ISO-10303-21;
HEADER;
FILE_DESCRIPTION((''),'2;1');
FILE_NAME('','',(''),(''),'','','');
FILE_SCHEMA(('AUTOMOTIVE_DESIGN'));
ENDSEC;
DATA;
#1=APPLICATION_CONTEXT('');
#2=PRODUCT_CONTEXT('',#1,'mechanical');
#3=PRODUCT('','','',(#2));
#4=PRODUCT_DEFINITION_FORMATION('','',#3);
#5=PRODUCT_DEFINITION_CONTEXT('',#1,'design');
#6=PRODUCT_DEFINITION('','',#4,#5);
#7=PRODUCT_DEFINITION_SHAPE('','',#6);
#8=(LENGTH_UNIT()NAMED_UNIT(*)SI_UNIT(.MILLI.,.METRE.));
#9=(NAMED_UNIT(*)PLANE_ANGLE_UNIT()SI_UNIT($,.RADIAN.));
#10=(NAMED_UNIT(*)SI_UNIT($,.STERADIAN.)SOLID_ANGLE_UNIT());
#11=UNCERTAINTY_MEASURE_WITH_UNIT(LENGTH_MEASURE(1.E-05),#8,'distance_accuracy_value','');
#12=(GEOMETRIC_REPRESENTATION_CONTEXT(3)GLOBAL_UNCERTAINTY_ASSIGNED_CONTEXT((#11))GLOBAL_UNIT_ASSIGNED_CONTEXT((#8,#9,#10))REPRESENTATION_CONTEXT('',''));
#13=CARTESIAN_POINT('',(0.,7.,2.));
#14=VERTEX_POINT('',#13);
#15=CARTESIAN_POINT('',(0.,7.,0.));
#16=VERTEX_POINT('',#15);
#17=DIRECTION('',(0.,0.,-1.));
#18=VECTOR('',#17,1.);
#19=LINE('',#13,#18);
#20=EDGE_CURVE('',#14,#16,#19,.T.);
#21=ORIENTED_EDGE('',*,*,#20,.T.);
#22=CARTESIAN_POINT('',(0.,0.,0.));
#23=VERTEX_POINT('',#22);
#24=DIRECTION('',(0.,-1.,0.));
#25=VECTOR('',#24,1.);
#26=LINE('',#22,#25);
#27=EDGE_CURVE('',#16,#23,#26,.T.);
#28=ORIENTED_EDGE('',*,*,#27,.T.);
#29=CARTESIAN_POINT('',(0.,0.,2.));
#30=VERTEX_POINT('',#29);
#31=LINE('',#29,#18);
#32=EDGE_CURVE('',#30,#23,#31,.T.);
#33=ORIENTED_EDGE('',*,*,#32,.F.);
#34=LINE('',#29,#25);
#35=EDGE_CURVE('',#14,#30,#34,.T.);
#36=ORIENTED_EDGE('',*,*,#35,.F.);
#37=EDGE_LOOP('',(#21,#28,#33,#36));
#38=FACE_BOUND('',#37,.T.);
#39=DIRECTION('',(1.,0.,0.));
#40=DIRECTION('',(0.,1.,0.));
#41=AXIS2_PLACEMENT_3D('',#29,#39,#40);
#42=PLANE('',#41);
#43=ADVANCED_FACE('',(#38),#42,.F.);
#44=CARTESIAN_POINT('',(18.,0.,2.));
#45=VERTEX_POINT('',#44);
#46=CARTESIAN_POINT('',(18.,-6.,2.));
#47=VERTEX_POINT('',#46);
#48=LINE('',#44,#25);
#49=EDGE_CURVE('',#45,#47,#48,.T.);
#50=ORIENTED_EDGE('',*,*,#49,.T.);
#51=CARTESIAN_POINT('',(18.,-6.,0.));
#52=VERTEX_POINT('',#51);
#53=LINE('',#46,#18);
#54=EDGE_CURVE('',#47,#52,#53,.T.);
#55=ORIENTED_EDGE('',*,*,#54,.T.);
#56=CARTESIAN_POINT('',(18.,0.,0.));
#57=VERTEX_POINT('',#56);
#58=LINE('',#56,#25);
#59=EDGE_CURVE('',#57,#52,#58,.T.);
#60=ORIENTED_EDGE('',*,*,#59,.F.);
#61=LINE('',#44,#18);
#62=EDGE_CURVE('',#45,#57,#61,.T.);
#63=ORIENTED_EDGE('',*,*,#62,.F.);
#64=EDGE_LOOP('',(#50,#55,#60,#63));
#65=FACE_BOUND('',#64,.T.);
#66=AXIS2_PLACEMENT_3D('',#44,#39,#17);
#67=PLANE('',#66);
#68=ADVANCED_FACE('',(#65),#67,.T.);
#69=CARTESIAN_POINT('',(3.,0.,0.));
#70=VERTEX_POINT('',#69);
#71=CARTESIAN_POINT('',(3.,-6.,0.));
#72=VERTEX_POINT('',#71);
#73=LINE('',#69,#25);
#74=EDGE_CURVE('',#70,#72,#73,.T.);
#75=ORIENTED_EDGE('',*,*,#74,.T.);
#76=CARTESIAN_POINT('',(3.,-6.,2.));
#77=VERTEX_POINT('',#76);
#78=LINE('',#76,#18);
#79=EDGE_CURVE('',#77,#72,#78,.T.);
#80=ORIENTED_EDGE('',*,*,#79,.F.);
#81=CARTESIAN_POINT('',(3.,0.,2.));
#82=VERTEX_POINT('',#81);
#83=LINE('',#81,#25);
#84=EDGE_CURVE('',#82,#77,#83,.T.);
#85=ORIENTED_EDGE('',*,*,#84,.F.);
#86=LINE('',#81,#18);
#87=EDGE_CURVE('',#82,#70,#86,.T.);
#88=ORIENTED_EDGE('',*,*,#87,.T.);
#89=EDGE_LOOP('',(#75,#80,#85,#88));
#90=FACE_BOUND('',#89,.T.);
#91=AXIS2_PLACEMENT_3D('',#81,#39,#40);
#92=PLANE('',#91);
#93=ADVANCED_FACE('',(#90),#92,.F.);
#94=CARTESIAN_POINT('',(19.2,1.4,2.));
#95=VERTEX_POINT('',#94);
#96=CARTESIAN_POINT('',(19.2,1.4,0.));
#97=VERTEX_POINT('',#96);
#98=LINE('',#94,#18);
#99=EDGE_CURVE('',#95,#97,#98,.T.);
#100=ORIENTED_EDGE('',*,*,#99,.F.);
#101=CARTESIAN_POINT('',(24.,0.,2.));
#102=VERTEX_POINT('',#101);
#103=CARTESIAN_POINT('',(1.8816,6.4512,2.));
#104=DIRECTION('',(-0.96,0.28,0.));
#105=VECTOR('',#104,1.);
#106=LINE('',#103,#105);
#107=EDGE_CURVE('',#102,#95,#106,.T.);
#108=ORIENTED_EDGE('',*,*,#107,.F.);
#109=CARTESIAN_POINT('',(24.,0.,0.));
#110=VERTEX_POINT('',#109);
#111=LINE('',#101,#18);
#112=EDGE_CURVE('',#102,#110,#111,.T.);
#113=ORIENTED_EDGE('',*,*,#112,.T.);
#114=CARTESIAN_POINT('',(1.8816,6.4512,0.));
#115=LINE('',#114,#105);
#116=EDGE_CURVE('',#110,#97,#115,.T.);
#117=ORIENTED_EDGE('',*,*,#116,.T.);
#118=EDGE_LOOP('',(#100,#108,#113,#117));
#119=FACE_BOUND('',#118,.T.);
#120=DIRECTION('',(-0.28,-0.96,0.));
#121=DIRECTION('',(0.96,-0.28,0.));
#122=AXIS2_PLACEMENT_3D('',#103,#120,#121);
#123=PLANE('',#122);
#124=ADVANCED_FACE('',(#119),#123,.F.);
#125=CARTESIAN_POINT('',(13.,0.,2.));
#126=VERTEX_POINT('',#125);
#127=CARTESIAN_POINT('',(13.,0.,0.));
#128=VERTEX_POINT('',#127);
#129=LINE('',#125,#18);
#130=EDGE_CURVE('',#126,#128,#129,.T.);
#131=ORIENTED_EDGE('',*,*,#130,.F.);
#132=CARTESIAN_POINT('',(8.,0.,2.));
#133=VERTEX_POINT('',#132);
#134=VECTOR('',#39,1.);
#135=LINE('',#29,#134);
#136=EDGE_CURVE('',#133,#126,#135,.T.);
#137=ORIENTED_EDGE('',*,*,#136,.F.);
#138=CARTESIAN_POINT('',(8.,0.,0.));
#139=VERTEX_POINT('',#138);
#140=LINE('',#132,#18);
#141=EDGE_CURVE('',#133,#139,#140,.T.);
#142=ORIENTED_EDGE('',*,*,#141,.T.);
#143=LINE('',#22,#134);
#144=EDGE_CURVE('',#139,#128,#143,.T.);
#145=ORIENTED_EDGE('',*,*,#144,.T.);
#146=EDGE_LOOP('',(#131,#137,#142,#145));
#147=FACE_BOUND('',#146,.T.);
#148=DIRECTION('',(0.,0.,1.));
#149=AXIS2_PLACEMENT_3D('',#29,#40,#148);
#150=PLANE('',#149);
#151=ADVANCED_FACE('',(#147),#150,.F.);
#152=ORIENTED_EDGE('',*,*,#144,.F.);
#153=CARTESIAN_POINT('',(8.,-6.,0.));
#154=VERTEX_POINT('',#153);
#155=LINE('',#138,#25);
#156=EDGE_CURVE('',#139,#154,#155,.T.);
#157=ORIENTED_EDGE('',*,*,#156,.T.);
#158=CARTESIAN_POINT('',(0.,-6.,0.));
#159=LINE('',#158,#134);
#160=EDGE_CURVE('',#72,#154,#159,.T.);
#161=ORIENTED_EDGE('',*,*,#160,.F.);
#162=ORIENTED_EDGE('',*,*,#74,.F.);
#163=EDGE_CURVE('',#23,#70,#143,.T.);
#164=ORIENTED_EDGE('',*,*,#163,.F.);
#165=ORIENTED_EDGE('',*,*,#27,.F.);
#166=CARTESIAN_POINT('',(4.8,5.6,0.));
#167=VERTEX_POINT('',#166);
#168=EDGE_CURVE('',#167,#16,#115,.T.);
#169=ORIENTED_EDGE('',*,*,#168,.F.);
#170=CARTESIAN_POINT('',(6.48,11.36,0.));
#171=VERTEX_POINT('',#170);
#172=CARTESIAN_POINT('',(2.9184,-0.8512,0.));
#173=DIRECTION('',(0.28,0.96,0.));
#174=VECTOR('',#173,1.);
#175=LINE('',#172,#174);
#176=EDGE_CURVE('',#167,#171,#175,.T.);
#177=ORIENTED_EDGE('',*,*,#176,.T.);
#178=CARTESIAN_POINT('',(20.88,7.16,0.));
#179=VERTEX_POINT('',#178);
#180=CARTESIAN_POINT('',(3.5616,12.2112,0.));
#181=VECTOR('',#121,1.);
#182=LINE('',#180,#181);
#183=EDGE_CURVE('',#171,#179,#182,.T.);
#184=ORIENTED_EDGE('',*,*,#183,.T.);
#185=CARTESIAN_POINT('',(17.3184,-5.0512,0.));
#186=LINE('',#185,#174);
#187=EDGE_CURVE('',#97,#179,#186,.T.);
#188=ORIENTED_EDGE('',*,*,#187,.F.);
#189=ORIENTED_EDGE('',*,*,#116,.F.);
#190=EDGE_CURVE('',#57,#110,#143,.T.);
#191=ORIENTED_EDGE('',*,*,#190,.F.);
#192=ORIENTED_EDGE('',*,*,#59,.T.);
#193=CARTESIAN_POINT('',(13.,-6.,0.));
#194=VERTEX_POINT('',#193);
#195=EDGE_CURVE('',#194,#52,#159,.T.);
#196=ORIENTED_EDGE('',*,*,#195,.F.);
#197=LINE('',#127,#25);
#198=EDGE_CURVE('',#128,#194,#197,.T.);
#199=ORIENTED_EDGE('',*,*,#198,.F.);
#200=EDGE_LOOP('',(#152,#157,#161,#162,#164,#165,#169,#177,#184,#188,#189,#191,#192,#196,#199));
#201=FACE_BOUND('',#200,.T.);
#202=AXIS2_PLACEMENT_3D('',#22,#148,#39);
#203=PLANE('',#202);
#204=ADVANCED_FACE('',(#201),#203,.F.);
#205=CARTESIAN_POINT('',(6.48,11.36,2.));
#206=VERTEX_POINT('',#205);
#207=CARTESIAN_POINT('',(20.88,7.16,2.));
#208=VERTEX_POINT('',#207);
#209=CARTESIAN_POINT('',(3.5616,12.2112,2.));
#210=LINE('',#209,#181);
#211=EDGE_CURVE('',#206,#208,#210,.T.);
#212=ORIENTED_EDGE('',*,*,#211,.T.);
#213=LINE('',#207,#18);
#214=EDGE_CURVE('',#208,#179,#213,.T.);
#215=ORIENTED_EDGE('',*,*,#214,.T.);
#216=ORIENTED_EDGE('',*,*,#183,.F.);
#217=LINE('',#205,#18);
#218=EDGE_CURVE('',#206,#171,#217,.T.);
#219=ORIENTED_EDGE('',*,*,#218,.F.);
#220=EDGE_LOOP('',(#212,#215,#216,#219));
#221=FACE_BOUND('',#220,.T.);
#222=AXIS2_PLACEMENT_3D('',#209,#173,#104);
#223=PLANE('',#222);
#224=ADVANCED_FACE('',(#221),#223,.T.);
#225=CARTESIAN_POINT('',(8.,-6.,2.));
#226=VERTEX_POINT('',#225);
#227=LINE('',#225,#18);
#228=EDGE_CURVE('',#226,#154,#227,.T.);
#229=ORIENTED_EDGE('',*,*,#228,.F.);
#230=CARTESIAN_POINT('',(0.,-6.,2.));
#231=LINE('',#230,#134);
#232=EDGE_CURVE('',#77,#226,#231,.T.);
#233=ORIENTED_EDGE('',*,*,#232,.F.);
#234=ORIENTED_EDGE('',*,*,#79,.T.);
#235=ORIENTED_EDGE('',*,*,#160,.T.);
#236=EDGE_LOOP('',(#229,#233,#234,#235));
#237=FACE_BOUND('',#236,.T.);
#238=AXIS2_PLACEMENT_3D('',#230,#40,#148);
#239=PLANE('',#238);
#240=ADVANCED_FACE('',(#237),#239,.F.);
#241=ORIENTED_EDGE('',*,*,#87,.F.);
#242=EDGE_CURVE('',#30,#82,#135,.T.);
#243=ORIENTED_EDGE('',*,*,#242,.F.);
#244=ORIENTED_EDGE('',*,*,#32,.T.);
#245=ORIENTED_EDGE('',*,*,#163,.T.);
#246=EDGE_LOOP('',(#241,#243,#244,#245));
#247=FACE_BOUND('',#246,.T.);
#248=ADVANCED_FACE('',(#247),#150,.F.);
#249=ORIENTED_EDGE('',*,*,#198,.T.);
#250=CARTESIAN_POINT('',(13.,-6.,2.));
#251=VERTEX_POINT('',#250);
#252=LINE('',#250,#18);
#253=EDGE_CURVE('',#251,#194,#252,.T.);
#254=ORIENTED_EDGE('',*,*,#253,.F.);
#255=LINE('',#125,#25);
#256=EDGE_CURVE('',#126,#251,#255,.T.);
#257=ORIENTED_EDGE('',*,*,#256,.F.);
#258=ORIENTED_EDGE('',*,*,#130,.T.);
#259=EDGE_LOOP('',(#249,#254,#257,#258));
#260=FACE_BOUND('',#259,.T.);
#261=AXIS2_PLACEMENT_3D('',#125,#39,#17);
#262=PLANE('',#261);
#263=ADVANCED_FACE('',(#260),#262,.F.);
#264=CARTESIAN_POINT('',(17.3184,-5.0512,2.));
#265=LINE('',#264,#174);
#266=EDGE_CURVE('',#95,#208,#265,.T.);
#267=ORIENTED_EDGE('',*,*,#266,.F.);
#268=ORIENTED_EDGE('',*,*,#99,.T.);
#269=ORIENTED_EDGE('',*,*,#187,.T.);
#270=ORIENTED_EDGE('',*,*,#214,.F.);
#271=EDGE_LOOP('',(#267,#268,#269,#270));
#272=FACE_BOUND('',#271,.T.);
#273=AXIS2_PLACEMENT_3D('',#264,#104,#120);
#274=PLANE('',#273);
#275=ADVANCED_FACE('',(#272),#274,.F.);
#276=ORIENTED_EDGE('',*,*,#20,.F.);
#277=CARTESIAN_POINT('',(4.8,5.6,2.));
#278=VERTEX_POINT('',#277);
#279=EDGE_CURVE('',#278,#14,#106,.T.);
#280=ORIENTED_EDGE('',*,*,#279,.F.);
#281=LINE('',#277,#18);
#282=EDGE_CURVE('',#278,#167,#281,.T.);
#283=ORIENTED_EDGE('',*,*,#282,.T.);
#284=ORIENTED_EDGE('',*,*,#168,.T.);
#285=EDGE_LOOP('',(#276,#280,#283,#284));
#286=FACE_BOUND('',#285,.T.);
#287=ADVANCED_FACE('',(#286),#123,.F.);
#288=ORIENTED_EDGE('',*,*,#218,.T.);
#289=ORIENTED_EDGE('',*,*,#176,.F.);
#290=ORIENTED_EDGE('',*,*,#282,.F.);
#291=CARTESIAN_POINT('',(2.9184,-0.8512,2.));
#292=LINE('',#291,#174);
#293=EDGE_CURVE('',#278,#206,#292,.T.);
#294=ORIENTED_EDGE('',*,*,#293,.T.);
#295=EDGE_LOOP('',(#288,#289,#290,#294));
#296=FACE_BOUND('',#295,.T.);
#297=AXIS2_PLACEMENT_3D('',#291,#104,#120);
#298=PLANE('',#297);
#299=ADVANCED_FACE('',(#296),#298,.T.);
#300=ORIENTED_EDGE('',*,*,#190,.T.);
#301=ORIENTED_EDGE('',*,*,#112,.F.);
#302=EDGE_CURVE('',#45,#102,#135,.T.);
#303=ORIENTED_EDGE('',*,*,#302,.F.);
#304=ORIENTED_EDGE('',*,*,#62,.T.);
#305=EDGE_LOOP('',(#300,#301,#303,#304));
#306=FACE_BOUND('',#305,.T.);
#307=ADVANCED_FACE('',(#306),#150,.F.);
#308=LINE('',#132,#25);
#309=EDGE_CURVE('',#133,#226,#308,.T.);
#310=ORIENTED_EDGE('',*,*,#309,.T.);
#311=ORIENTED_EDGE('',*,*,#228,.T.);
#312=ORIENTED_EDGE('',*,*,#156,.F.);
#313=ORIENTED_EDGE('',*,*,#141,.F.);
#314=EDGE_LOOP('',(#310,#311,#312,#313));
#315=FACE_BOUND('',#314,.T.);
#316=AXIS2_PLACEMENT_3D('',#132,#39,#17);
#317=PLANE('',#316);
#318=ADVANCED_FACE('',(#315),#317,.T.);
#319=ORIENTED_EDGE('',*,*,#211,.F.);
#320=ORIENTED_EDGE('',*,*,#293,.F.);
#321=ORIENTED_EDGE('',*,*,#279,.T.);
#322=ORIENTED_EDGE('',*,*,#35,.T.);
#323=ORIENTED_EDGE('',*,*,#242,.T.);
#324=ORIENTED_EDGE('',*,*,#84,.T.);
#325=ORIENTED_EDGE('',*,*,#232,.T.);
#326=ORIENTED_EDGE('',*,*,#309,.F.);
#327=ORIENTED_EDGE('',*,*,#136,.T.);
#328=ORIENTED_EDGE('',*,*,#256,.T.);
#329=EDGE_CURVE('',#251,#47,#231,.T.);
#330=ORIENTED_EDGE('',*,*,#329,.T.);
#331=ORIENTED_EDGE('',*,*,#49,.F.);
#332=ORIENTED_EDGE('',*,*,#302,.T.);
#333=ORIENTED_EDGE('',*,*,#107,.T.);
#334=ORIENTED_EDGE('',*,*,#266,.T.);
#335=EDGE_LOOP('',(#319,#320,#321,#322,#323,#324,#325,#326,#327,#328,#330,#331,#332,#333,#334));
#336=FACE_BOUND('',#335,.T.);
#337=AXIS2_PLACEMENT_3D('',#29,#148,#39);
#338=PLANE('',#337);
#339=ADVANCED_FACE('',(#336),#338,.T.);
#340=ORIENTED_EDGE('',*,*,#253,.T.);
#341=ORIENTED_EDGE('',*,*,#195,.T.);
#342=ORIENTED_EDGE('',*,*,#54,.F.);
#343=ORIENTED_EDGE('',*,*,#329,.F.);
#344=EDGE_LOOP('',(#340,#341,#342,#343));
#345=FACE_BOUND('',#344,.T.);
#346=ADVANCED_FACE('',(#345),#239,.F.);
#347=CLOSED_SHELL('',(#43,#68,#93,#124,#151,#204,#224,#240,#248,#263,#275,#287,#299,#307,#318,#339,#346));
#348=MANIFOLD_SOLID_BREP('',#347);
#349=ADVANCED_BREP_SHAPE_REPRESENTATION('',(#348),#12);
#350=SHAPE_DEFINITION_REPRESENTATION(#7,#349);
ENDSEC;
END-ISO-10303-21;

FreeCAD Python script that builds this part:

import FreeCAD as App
import Part
import Sketcher

V = App.Vector

doc = App.newDocument("Part")
body = doc.addObject("PartDesign::Body", "Body")

# Sketch on XY plane
sketch1 = body.newObject("Sketcher::SketchObject", "Sketch")
sketch1.AttachmentSupport = (doc.getObject("XY_Plane"), [""])
sketch1.MapMode = "FlatFace"
sketch1.addGeometry(Part.LineSegment(V(24, 0, 0), V(19.2, 1.4, 0)), False)
sketch1.addGeometry(Part.LineSegment(V(19.2, 1.4, 0), V(20.9, 7.2, 0)), False)
sketch1.addGeometry(Part.LineSegment(V(20.9, 7.2, 0), V(6.5, 11.4, 0)), False)
sketch1.addGeometry(Part.LineSegment(V(6.5, 11.4, 0), V(4.8, 5.6, 0)), False)
sketch1.addGeometry(Part.LineSegment(V(4.8, 5.6, 0), V(0, 7, 0)), False)
sketch1.addGeometry(Part.LineSegment(V(0, 7, 0), V(0, 0, 0)), False)
sketch1.addGeometry(Part.LineSegment(V(0, 0, 0), V(3, 0, 0)), False)
sketch1.addGeometry(Part.LineSegment(V(3, 0, 0), V(3, -6, 0)), False)
sketch1.addGeometry(Part.LineSegment(V(3, -6, 0), V(8, -6, 0)), False)
sketch1.addGeometry(Part.LineSegment(V(8, -6, 0), V(8, 0, 0)), False)
sketch1.addGeometry(Part.LineSegment(V(8, 0, 0), V(13, 0, 0)), False)
sketch1.addGeometry(Part.LineSegment(V(13, 0, 0), V(13, -6, 0)), False)
sketch1.addGeometry(Part.LineSegment(V(13, -6, 0), V(18, -6, 0)), False)
sketch1.addGeometry(Part.LineSegment(V(18, -6, 0), V(18, 0, 0)), False)
sketch1.addGeometry(Part.LineSegment(V(18, 0, 0), V(24, 0, 0)), False)
sketch1.addConstraint(Sketcher.Constraint("Coincident", 0, 2, 1, 1))
sketch1.addConstraint(Sketcher.Constraint("Coincident", 1, 2, 2, 1))
sketch1.addConstraint(Sketcher.Constraint("Coincident", 2, 2, 3, 1))
sketch1.addConstraint(Sketcher.Constraint("Coincident", 3, 2, 4, 1))
sketch1.addConstraint(Sketcher.Constraint("Coincident", 4, 2, 5, 1))
sketch1.addConstraint(Sketcher.Constraint("Coincident", 5, 2, 6, 1))
sketch1.addConstraint(Sketcher.Constraint("Coincident", 6, 2, 7, 1))
sketch1.addConstraint(Sketcher.Constraint("Coincident", 7, 2, 8, 1))
sketch1.addConstraint(Sketcher.Constraint("Coincident", 8, 2, 9, 1))
sketch1.addConstraint(Sketcher.Constraint("Coincident", 9, 2, 10, 1))
sketch1.addConstraint(Sketcher.Constraint("Coincident", 10, 2, 11, 1))
sketch1.addConstraint(Sketcher.Constraint("Coincident", 11, 2, 12, 1))
sketch1.addConstraint(Sketcher.Constraint("Coincident", 12, 2, 13, 1))
sketch1.addConstraint(Sketcher.Constraint("Coincident", 13, 2, 14, 1))
sketch1.addConstraint(Sketcher.Constraint("Coincident", 14, 2, 0, 1))
sketch1.addConstraint(Sketcher.Constraint("Vertical", 5))
sketch1.addConstraint(Sketcher.Constraint("Horizontal", 6))
sketch1.addConstraint(Sketcher.Constraint("Vertical", 7))
sketch1.addConstraint(Sketcher.Constraint("Horizontal", 8))
sketch1.addConstraint(Sketcher.Constraint("Vertical", 9))
sketch1.addConstraint(Sketcher.Constraint("Horizontal", 10))
sketch1.addConstraint(Sketcher.Constraint("Vertical", 11))
sketch1.addConstraint(Sketcher.Constraint("Horizontal", 12))
sketch1.addConstraint(Sketcher.Constraint("Vertical", 13))
sketch1.addConstraint(Sketcher.Constraint("Horizontal", 14))
sketch1.addConstraint(Sketcher.Constraint("Coincident", 5, 2, -1, 1))
sketch1.addConstraint(Sketcher.Constraint("PointOnObject", 9, 2, -1))
sketch1.addConstraint(Sketcher.Constraint("PointOnObject", 13, 2, -1))
sketch1.addConstraint(Sketcher.Constraint("Perpendicular", 0, 1))
sketch1.addConstraint(Sketcher.Constraint("Perpendicular", 1, 2))
sketch1.addConstraint(Sketcher.Constraint("Perpendicular", 2, 3))
sketch1.addConstraint(Sketcher.Constraint("Perpendicular", 3, 4))
sketch1.addConstraint(Sketcher.Constraint("Horizontal", 8, 2, 11, 2))
sketch1.addConstraint(Sketcher.Constraint("Equal", 8, 10))
sketch1.addConstraint(Sketcher.Constraint("Equal", 10, 12))
sketch1.addConstraint(Sketcher.Constraint("Equal", 14, 7))
sketch1.addConstraint(Sketcher.Constraint("Equal", 1, 3))
sketch1.addConstraint(Sketcher.Constraint("Equal", 0, 4))
sketch1.addConstraint(Sketcher.Constraint("DistanceX", 6, 1, 6, 2, 3.0))
sketch1.addConstraint(Sketcher.Constraint("DistanceX", 8, 1, 8, 2, 5.0))
sketch1.addConstraint(Sketcher.Constraint("DistanceX", 14, 1, 14, 2, 6.0))
sketch1.addConstraint(Sketcher.Constraint("DistanceY", 5, 2, 5, 1, 7.0))
sketch1.addConstraint(Sketcher.Constraint("Distance", 0, 5.0))
sketch1.addConstraint(Sketcher.Constraint("Distance", 1, 6.0))
pad1 = body.newObject("PartDesign::Pad", "Pad")
pad1.Profile = sketch1
pad1.Length = 2

doc.recompute()
